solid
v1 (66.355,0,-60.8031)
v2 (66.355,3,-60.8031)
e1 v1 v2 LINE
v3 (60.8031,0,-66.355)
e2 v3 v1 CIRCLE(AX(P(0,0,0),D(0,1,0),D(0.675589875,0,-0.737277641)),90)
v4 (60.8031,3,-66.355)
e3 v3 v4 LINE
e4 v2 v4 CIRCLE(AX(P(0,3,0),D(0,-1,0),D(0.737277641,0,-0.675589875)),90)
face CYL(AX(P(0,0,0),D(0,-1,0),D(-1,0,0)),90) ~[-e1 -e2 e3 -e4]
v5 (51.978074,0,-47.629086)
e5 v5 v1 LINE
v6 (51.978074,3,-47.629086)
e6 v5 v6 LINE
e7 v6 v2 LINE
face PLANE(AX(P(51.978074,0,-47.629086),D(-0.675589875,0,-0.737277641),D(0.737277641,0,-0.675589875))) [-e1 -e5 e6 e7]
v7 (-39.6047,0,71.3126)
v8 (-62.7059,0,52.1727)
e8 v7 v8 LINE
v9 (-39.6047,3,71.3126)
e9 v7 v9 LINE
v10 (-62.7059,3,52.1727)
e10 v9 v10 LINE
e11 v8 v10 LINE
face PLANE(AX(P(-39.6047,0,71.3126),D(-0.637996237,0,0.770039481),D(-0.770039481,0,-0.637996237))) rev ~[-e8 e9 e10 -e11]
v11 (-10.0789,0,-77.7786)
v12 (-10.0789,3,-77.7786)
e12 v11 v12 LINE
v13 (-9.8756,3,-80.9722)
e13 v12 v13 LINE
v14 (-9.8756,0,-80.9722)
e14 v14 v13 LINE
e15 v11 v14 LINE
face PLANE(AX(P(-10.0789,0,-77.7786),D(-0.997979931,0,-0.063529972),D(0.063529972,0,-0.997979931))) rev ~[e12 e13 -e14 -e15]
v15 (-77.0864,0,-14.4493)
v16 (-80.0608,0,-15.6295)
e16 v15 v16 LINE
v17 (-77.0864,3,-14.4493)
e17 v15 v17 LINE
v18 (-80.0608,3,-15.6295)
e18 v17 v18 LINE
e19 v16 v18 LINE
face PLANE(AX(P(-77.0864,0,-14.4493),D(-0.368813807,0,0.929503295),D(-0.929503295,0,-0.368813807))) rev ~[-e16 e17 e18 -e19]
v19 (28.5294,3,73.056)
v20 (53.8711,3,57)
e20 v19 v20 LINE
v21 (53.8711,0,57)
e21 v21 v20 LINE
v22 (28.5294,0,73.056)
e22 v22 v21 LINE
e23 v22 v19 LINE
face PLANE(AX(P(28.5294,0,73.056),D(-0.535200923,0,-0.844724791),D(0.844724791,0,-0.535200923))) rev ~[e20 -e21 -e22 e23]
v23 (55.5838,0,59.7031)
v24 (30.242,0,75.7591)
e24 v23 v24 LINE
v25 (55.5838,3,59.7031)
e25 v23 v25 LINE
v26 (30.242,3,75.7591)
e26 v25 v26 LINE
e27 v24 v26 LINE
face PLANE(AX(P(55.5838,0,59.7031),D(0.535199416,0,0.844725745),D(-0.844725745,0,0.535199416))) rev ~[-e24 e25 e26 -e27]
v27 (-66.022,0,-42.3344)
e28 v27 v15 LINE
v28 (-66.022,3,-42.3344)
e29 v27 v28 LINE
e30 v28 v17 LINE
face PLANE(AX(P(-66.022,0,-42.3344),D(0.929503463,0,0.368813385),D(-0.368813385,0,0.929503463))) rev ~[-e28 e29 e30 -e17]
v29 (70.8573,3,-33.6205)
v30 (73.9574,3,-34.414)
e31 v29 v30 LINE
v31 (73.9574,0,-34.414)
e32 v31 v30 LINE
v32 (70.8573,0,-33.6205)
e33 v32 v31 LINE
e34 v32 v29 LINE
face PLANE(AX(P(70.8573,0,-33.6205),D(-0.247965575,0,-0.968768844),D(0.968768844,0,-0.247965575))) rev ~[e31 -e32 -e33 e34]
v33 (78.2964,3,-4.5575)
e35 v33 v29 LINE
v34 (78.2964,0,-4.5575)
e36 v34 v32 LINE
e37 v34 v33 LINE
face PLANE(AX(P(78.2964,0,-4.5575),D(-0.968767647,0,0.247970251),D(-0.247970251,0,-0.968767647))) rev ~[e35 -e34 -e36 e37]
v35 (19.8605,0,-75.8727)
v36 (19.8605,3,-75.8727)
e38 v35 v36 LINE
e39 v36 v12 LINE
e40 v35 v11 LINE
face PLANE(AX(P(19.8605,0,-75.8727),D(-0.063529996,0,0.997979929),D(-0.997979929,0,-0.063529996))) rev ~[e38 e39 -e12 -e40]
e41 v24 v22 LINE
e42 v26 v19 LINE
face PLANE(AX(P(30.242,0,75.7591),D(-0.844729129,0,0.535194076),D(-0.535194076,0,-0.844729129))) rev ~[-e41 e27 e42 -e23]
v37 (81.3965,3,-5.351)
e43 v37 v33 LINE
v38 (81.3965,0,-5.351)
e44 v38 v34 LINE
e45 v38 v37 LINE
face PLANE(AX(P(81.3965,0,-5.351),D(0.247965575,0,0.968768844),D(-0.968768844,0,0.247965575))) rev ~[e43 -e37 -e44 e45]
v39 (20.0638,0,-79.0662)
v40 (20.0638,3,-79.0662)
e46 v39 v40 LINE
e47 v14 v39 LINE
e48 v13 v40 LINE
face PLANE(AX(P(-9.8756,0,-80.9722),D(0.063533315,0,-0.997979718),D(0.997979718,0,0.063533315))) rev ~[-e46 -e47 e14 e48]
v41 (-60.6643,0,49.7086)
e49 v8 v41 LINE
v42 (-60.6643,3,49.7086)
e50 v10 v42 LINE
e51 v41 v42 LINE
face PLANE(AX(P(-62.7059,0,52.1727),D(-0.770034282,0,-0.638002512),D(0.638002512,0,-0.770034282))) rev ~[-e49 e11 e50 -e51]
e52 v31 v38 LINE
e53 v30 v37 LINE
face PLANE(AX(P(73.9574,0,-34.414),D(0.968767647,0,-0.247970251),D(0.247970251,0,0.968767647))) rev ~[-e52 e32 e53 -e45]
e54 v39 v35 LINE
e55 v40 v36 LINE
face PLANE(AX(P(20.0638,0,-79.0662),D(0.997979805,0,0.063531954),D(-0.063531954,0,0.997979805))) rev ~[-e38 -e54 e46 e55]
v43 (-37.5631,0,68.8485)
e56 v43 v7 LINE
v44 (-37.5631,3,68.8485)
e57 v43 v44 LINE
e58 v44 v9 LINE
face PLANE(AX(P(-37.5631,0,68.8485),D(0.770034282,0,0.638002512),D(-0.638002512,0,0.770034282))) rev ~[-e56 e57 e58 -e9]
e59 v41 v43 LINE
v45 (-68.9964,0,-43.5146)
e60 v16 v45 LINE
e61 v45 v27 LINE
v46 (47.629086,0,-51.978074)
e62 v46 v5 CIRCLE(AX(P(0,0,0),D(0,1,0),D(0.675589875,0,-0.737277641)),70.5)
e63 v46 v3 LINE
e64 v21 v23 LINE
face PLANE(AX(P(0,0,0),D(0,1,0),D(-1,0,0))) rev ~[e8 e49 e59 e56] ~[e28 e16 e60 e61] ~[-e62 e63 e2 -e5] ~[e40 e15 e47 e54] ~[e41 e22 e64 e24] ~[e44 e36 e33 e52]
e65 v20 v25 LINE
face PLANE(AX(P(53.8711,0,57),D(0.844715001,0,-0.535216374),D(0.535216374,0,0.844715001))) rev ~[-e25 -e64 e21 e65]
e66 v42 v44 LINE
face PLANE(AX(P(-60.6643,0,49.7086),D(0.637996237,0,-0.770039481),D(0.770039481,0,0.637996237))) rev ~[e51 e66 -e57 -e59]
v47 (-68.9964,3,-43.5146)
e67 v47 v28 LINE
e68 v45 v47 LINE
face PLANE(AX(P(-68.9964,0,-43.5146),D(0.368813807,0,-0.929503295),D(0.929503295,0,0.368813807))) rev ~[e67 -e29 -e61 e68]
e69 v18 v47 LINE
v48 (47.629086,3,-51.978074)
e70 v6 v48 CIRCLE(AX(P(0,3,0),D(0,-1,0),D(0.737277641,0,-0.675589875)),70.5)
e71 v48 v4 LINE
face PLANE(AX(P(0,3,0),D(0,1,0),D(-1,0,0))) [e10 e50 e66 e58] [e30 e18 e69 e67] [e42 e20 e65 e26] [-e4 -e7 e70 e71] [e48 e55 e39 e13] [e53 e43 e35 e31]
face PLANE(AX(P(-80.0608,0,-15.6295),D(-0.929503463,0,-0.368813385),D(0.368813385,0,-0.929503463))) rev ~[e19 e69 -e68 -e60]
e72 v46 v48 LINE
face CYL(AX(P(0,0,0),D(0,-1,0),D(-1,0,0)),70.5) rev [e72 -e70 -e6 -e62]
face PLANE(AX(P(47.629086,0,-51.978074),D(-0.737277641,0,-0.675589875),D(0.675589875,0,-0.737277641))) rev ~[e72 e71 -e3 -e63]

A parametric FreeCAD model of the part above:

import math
import FreeCAD as App
import Part
import Sketcher

doc = App.newDocument("Part")
params = doc.addObject("Spreadsheet::Sheet", "Params")
for row, (alias, value) in enumerate([
    ("sketch1_radius", "90 mm"),
    ("sketch1_radius2", "70.5 mm"),
    ("sketch1_length", "30 mm"),
    ("sketch1_length2", "30 mm"),
    ("sketch1_length3", "30 mm"),
    ("pad1_length", "3 mm"),
], start=1):
    params.set(f"A{row}", alias)
    params.set(f"B{row}", "=" + value)
    params.setAlias(f"B{row}", alias)

body = doc.addObject("PartDesign::Body", "Body")

# Sketch on XZ plane
sketch1 = body.newObject("Sketcher::SketchObject", "Sketch")
sketch1.AttachmentSupport = (doc.getObject("XZ_Plane"), [""])
sketch1.MapMode = "FlatFace"
sketch1.addGeometry([
    Part.ArcOfCircle(Part.Circle(App.Vector(0, 0, 0), App.Vector(0, 0, 1), 90), math.radians(-42.499974), math.radians(312.499974)),  # 0
    Part.LineSegment(App.Vector(66.355, -60.8031, 0), App.Vector(51.978074, -47.629086, 0)),  # 1
    Part.ArcOfCircle(Part.Circle(App.Vector(0, 0, 0), App.Vector(0, 0, 1), 70.5), math.radians(-42.499974), math.radians(312.499974)),  # 2
    Part.LineSegment(App.Vector(47.629086, -51.978074, 0), App.Vector(60.8031, -66.355, 0)),  # 3
    Part.LineSegment(App.Vector(-10.0789, -77.7786, 0), App.Vector(-9.8756, -80.9722, 0)),  # 4
    Part.LineSegment(App.Vector(-9.8756, -80.9722, 0), App.Vector(20.0638, -79.0662, 0)),  # 5
    Part.LineSegment(App.Vector(20.0638, -79.0662, 0), App.Vector(19.8605, -75.8727, 0)),  # 6
    Part.LineSegment(App.Vector(19.8605, -75.8727, 0), App.Vector(-10.0789, -77.7786, 0)),  # 7
    Part.LineSegment(App.Vector(-77.0864, -14.4493, 0), App.Vector(-80.0608, -15.6295, 0)),  # 8
    Part.LineSegment(App.Vector(-80.0608, -15.6295, 0), App.Vector(-68.9964, -43.5146, 0)),  # 9
    Part.LineSegment(App.Vector(-68.9964, -43.5146, 0), App.Vector(-66.022, -42.3344, 0)),  # 10
    Part.LineSegment(App.Vector(-66.022, -42.3344, 0), App.Vector(-77.0864, -14.4493, 0)),  # 11
    Part.LineSegment(App.Vector(-39.6047, 71.3126, 0), App.Vector(-62.7059, 52.1727, 0)),  # 12
    Part.LineSegment(App.Vector(-62.7059, 52.1727, 0), App.Vector(-60.6643, 49.7086, 0)),  # 13
    Part.LineSegment(App.Vector(-60.6643, 49.7086, 0), App.Vector(-37.5631, 68.8485, 0)),  # 14
    Part.LineSegment(App.Vector(-37.5631, 68.8485, 0), App.Vector(-39.6047, 71.3126, 0)),  # 15
    Part.LineSegment(App.Vector(55.5838, 59.7031, 0), App.Vector(30.242, 75.7591, 0)),  # 16
    Part.LineSegment(App.Vector(30.242, 75.7591, 0), App.Vector(28.5294, 73.056, 0)),  # 17
    Part.LineSegment(App.Vector(28.5294, 73.056, 0), App.Vector(53.8711, 57, 0)),  # 18
    Part.LineSegment(App.Vector(53.8711, 57, 0), App.Vector(55.5838, 59.7031, 0)),  # 19
    Part.LineSegment(App.Vector(81.3965, -5.351, 0), App.Vector(78.2964, -4.5575, 0)),  # 20
    Part.LineSegment(App.Vector(78.2964, -4.5575, 0), App.Vector(70.8573, -33.6205, 0)),  # 21
    Part.LineSegment(App.Vector(70.8573, -33.6205, 0), App.Vector(73.9574, -34.414, 0)),  # 22
    Part.LineSegment(App.Vector(73.9574, -34.414, 0), App.Vector(81.3965, -5.351, 0)),  # 23
], False)
sketch1.addConstraint([
    Sketcher.Constraint("Coincident", 0, 1, 1, 1),
    Sketcher.Constraint("Coincident", 1, 2, 2, 1),
    Sketcher.Constraint("Coincident", 2, 2, 3, 1),
    Sketcher.Constraint("Coincident", 3, 2, 0, 2),
    Sketcher.Constraint("Coincident", 4, 2, 5, 1),
    Sketcher.Constraint("Coincident", 5, 2, 6, 1),
    Sketcher.Constraint("Coincident", 6, 2, 7, 1),
    Sketcher.Constraint("Coincident", 7, 2, 4, 1),
    Sketcher.Constraint("Coincident", 8, 2, 9, 1),
    Sketcher.Constraint("Coincident", 9, 2, 10, 1),
    Sketcher.Constraint("Coincident", 10, 2, 11, 1),
    Sketcher.Constraint("Coincident", 11, 2, 8, 1),
    Sketcher.Constraint("Coincident", 12, 2, 13, 1),
    Sketcher.Constraint("Coincident", 13, 2, 14, 1),
    Sketcher.Constraint("Coincident", 14, 2, 15, 1),
    Sketcher.Constraint("Coincident", 15, 2, 12, 1),
    Sketcher.Constraint("Coincident", 16, 2, 17, 1),
    Sketcher.Constraint("Coincident", 17, 2, 18, 1),
    Sketcher.Constraint("Coincident", 18, 2, 19, 1),
    Sketcher.Constraint("Coincident", 19, 2, 16, 1),
    Sketcher.Constraint("Coincident", 20, 2, 21, 1),
    Sketcher.Constraint("Coincident", 21, 2, 22, 1),
    Sketcher.Constraint("Coincident", 22, 2, 23, 1),
    Sketcher.Constraint("Coincident", 23, 2, 20, 1),
    Sketcher.Constraint("Coincident", 0, 3, -1, 1),
    Sketcher.Constraint("Coincident", 2, 3, -1, 1),
    Sketcher.Constraint("Radius", 0, 90.0),
    Sketcher.Constraint("Radius", 2, 70.5),
    Sketcher.Constraint("Distance", 5, 30.0),
    Sketcher.Constraint("Distance", 7, 30.0),
    Sketcher.Constraint("Distance", 9, 30.0),
    Sketcher.Constraint("Distance", 11, 30.0),
    Sketcher.Constraint("Distance", 12, 30.0),
    Sketcher.Constraint("Distance", 14, 30.0),
    Sketcher.Constraint("Distance", 16, 30.0),
    Sketcher.Constraint("Distance", 18, 30.0),
    Sketcher.Constraint("Distance", 21, 30.0),
    Sketcher.Constraint("Distance", 23, 30.0),
    Sketcher.Constraint("Distance", 4, 3.2),
    Sketcher.Constraint("Distance", 6, 3.2),
    Sketcher.Constraint("Distance", 8, 3.2),
    Sketcher.Constraint("Distance", 10, 3.2),
    Sketcher.Constraint("Distance", 13, 3.2),
    Sketcher.Constraint("Distance", 15, 3.2),
    Sketcher.Constraint("Distance", 17, 3.2),
    Sketcher.Constraint("Distance", 19, 3.2),
    Sketcher.Constraint("Distance", 20, 3.2),
    Sketcher.Constraint("Distance", 22, 3.2),
    Sketcher.Constraint("DistanceY", -1, 1, 18, 2, 57.0),
    Sketcher.Constraint("DistanceX", 21, 2, 22, 2, 3.1),
    Sketcher.Constraint("DistanceX", 11, 2, 9, 2, 8.09),
    Sketcher.Constraint("DistanceY", 13, 2, 14, 2, 19.14),
    Sketcher.Constraint("DistanceX", -1, 1, 0, 1, 66.355),
    Sketcher.Constraint("DistanceX", -1, 1, 1, 2, 51.978),
    Sketcher.Constraint("DistanceX", -1, 1, 2, 2, 47.629),
    Sketcher.Constraint("DistanceX", -1, 1, 3, 2, 60.803),
    Sketcher.Constraint("DistanceX", 7, 2, -1, 1, 10.079),
    Sketcher.Constraint("DistanceX", 10, 2, -1, 1, 66.022),
    Sketcher.Constraint("DistanceX", 12, 2, -1, 1, 62.706),
    Sketcher.Constraint("DistanceX", 14, 2, -1, 1, 37.563),
    Sketcher.Constraint("DistanceX", -1, 1, 16, 2, 30.242),
    Sketcher.Constraint("DistanceY", -1, 1, 16, 2, 75.759),
    Sketcher.Constraint("DistanceY", -1, 1, 17, 2, 73.056),
    Sketcher.Constraint("DistanceY", 22, 2, -1, 1, 34.414),
    Sketcher.Constraint("DistanceY", 23, 2, -1, 1, 5.351),
    Sketcher.Constraint("DistanceY", 4, 2, 1, 2, 33.343),
    Sketcher.Constraint("DistanceY", 4, 2, 5, 2, 1.906),
    Sketcher.Constraint("DistanceX", 4, 2, 6, 2, 29.736),
    Sketcher.Constraint("DistanceX", 8, 2, 7, 2, 69.982),
    Sketcher.Constraint("DistanceY", 7, 2, 8, 2, 62.149),
    Sketcher.Constraint("DistanceY", 11, 2, 12, 2, 66.622),
    Sketcher.Constraint("DistanceX", -1, 1, 20, 2, 78.2964),
])
sketch1.setExpression("Constraints[26]", "Params.sketch1_radius")
sketch1.setExpression("Constraints[27]", "Params.sketch1_radius2")
sketch1.setExpression("Constraints[28]", "Params.sketch1_length")
sketch1.setExpression("Constraints[29]", "Params.sketch1_length2")
sketch1.setExpression("Constraints[30]", "Params.sketch1_length3")
pad1 = body.newObject("PartDesign::Pad", "Pad")
pad1.Profile = sketch1
pad1.setExpression("Length", "Params.pad1_length")
pad1.Reversed = True

doc.recompute()
